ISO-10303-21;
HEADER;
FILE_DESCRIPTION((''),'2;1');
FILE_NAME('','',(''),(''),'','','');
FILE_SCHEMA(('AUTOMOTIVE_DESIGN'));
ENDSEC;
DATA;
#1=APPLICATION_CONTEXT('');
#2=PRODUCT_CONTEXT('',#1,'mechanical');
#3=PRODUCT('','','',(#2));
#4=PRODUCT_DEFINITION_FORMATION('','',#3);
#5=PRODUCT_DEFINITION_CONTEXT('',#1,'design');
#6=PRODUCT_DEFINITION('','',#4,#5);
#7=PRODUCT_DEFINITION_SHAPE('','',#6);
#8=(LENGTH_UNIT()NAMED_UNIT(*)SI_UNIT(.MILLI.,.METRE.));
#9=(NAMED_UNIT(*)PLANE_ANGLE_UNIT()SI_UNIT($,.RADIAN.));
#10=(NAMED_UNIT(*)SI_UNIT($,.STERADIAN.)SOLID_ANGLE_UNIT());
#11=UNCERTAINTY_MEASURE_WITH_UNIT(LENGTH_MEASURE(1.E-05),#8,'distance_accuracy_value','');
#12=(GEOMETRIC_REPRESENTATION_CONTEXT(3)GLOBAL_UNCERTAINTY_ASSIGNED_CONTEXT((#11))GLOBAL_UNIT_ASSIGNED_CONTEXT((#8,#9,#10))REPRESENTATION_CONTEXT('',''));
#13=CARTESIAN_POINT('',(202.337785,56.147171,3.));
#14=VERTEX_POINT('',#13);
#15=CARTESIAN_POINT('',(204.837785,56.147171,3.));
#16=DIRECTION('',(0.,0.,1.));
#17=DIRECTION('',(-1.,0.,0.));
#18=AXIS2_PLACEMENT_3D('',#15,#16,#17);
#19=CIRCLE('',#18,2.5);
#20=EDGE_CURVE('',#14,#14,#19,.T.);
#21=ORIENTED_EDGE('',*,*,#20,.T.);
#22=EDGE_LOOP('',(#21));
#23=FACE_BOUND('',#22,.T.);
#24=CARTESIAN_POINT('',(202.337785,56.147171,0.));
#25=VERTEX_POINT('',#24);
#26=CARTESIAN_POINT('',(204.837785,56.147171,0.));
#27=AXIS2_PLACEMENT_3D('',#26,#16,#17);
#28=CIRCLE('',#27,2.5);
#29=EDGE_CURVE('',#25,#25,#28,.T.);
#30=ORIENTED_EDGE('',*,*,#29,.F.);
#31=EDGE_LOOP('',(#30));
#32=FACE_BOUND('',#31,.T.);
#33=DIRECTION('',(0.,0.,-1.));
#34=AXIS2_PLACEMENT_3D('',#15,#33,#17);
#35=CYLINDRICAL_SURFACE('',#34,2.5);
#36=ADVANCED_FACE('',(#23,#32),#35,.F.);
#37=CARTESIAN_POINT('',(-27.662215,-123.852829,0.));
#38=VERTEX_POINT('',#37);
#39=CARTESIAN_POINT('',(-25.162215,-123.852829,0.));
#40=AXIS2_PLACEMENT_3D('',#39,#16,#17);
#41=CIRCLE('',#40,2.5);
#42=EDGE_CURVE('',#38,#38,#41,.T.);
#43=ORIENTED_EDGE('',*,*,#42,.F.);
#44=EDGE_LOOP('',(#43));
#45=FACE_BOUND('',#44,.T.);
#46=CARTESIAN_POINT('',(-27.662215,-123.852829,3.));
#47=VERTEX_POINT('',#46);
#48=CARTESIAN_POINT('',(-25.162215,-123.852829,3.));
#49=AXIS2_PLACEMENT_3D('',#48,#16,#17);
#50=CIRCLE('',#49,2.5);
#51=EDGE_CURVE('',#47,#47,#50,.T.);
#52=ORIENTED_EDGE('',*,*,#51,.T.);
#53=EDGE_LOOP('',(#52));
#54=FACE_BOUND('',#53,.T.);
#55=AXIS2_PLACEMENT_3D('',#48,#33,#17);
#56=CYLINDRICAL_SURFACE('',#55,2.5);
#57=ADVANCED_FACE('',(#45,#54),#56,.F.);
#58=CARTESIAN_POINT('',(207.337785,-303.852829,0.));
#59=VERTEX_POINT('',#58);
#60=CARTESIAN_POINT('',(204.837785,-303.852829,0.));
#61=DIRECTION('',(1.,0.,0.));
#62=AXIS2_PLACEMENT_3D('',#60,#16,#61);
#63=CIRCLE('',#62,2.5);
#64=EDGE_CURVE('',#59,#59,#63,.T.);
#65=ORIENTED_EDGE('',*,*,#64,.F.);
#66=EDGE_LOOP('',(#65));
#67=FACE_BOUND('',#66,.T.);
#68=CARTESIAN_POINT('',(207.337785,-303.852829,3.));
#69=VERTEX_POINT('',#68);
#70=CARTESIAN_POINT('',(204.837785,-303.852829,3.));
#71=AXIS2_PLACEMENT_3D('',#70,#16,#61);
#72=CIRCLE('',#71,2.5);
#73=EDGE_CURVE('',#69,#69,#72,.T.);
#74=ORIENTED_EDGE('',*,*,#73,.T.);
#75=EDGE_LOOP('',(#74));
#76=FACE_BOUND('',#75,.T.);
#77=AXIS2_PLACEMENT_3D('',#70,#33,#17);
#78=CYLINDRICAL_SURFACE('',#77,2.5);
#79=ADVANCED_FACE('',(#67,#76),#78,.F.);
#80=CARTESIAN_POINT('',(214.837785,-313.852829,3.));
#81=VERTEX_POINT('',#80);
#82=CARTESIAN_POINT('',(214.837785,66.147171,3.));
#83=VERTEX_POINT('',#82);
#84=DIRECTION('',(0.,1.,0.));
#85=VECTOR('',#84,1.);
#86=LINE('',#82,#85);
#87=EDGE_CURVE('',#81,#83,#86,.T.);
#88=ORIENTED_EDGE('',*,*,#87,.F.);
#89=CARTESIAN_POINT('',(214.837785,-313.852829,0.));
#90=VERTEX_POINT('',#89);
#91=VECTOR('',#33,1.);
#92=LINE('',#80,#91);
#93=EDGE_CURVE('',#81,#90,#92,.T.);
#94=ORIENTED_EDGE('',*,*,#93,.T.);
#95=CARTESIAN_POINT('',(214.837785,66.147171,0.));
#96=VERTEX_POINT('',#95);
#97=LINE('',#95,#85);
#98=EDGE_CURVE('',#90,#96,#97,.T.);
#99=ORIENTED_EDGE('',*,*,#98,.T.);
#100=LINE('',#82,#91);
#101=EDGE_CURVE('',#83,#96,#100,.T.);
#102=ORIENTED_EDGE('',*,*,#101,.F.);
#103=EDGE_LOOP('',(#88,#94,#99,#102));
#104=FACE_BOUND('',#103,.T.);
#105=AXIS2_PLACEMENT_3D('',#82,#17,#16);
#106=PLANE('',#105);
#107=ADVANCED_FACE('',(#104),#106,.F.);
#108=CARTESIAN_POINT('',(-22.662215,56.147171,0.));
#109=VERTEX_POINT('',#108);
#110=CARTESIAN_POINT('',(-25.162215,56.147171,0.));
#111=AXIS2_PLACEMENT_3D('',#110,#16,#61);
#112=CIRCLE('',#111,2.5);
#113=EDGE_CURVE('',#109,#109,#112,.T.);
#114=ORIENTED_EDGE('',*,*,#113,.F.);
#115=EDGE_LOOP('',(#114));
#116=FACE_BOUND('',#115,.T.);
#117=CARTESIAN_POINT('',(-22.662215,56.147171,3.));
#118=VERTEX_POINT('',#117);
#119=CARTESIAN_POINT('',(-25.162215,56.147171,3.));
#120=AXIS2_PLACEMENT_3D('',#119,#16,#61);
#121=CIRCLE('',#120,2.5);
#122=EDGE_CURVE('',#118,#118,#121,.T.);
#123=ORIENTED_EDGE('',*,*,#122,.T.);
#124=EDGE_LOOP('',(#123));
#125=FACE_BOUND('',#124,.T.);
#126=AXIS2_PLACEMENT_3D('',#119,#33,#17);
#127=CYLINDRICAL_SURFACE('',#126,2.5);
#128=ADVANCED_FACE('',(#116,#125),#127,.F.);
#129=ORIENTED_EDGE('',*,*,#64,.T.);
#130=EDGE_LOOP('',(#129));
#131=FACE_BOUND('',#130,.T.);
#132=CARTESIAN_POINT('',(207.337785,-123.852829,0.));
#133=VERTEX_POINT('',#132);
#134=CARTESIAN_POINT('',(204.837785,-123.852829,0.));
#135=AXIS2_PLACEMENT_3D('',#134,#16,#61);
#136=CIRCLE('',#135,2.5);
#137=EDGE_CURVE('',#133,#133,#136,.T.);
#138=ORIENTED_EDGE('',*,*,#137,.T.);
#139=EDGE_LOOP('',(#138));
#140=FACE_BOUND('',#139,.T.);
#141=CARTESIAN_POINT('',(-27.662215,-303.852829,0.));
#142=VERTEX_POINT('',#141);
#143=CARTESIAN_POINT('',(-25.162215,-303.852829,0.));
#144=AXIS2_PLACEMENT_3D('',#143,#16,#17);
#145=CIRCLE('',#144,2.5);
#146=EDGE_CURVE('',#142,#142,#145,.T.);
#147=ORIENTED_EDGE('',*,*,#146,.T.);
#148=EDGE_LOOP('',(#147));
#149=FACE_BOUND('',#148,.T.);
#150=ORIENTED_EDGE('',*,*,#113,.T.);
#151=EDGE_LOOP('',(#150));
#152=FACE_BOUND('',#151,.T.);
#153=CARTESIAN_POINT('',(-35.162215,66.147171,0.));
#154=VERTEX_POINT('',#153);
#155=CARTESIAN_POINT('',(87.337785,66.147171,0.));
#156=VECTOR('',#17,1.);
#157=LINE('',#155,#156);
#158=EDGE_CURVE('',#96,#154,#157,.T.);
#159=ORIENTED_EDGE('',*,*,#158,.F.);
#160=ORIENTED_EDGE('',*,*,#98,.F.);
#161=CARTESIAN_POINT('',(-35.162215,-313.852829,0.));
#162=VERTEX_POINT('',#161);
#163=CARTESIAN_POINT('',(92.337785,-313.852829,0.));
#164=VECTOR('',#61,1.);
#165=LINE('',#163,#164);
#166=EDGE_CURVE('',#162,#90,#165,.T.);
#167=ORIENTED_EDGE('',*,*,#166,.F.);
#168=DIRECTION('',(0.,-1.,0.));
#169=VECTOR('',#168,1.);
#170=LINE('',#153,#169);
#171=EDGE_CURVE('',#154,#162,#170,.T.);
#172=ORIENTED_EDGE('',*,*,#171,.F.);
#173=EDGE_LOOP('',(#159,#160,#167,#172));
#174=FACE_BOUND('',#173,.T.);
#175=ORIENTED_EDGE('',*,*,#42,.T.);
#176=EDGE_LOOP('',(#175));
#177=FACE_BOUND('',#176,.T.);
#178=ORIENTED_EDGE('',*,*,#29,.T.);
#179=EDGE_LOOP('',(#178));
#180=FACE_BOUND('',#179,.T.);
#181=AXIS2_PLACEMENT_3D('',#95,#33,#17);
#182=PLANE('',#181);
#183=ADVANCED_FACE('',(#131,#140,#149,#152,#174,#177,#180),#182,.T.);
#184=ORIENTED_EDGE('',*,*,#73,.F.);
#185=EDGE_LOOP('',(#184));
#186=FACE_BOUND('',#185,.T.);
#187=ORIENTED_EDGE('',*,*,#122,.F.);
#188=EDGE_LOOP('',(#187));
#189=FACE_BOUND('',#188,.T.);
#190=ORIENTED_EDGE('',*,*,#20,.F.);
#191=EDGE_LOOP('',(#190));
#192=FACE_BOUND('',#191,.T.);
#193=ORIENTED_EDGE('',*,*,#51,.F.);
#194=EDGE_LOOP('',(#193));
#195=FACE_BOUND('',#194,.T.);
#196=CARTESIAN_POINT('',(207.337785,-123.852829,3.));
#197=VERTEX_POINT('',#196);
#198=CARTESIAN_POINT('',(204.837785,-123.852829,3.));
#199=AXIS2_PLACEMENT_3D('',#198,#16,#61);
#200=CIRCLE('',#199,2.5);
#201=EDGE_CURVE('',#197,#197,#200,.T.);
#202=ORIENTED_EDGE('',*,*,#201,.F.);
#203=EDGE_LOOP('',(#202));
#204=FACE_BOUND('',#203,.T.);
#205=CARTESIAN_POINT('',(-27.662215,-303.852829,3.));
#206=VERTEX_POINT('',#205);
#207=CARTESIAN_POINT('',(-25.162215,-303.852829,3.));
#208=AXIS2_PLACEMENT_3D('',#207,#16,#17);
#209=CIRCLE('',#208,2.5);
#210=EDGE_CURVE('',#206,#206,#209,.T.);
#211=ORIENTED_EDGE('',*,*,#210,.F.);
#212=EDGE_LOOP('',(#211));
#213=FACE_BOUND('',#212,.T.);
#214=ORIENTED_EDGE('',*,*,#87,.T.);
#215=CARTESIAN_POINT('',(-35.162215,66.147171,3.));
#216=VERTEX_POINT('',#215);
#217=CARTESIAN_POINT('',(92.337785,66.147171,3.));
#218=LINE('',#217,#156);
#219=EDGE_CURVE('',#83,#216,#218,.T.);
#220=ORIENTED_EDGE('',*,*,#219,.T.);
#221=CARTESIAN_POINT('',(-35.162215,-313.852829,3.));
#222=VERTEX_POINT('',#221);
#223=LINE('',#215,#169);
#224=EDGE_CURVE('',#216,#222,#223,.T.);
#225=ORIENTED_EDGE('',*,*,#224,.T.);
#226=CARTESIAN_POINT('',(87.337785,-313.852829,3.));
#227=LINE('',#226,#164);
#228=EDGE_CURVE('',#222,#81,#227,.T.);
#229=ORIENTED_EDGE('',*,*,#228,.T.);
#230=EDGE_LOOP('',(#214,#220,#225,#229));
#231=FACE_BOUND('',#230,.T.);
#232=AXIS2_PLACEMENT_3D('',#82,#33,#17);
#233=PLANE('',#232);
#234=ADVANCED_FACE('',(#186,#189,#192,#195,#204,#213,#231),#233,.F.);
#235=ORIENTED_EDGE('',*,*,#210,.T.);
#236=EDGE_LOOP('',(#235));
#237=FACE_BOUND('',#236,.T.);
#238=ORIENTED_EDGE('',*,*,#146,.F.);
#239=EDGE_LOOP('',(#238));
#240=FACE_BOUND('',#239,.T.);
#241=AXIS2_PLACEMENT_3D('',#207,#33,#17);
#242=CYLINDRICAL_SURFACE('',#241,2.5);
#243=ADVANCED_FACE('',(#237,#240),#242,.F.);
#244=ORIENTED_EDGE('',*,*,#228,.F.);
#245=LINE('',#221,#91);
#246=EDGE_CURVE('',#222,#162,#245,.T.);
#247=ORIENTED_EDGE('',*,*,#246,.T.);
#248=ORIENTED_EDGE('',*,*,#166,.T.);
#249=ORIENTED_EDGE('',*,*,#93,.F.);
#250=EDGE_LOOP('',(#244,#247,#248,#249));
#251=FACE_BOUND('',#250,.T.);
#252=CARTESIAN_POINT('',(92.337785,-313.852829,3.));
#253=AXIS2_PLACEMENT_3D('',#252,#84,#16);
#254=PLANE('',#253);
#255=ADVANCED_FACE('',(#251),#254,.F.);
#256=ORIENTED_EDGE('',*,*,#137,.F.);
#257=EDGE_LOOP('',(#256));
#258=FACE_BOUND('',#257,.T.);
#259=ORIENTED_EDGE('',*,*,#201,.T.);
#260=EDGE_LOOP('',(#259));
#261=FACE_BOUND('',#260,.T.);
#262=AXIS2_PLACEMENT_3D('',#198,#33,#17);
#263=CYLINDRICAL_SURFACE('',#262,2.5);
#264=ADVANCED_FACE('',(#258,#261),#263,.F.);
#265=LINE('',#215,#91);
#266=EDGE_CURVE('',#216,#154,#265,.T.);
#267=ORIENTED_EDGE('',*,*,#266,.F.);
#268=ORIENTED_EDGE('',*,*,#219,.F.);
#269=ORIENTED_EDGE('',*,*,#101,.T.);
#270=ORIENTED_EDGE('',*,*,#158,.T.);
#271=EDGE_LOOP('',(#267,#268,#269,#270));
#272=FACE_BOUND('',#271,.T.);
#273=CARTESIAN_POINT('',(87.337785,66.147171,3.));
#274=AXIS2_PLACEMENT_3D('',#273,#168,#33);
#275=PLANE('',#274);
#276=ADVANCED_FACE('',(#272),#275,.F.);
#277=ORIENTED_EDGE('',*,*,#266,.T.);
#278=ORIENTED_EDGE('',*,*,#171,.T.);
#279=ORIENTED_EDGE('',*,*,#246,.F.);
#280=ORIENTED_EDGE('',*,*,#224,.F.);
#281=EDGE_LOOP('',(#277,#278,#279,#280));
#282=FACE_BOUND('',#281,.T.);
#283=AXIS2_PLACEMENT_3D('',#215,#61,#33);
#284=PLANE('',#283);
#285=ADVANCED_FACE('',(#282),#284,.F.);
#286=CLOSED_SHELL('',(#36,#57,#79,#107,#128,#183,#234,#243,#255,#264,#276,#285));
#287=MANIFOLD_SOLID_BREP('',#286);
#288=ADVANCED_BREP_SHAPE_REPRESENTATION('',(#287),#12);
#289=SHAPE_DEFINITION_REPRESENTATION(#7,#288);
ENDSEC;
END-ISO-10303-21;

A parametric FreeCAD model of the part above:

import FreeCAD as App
import Part
import Sketcher
from FreeCAD import Vector


def add_polygon(sketch, points):
    """Adds a closed chain of lines whose ends are joined by coincident constraints."""
    first, n = sketch.GeometryCount, len(points)
    for a, b in zip(points, points[1:] + points[:1]):
        sketch.addGeometry(Part.LineSegment(App.Vector(*a, 0), App.Vector(*b, 0)), False)
    for i in range(n):
        sketch.addConstraint(Sketcher.Constraint("Coincident", first + i, 2, first + (i + 1) % n, 1))

doc = App.newDocument("Part")
body = doc.addObject("PartDesign::Body", "Body")

# Sketch on XY plane
sketch1 = body.newObject("Sketcher::SketchObject", "Sketch")
sketch1.AttachmentSupport = (doc.getObject("XY_Plane"), [""])
sketch1.MapMode = "FlatFace"
add_polygon(sketch1, [(-35.2, 66.1), (-35.2, -313.9), (214.8, -313.9), (214.8, 66.1)])  # lines 0-3
sketch1.addGeometry(Part.Circle(Vector(-25.2, -303.9, 0), Vector(0, 0, 1), 2.5), False)  # 4
sketch1.addGeometry(Part.Circle(Vector(-25.2, -123.9, 0), Vector(0, 0, 1), 2.5), False)  # 5
sketch1.addGeometry(Part.Circle(Vector(204.8, -303.9, 0), Vector(0, 0, 1), 2.5), False)  # 6
sketch1.addGeometry(Part.Circle(Vector(204.8, -123.9, 0), Vector(0, 0, 1), 2.5), False)  # 7
sketch1.addGeometry(Part.Circle(Vector(-25.2, 56.1, 0), Vector(0, 0, 1), 2.5), False)  # 8
sketch1.addGeometry(Part.Circle(Vector(204.8, 56.1, 0), Vector(0, 0, 1), 2.5), False)  # 9
sketch1.addConstraint([
    Sketcher.Constraint("Vertical", 0),
    Sketcher.Constraint("Horizontal", 1),
    Sketcher.Constraint("Vertical", 2),
    Sketcher.Constraint("Horizontal", 3),
    Sketcher.Constraint("Equal", 4, 5),
    Sketcher.Constraint("Equal", 5, 6),
    Sketcher.Constraint("Equal", 6, 7),
    Sketcher.Constraint("Equal", 7, 8),
    Sketcher.Constraint("Equal", 8, 9),
    Sketcher.Constraint("Horizontal", 4, 3, 6, 3),
    Sketcher.Constraint("Horizontal", 5, 3, 7, 3),
    Sketcher.Constraint("Horizontal", 8, 3, 9, 3),
    Sketcher.Constraint("Vertical", 4, 3, 5, 3),
    Sketcher.Constraint("Vertical", 6, 3, 7, 3),
    Sketcher.Constraint("Vertical", 5, 3, 8, 3),
    Sketcher.Constraint("Vertical", 7, 3, 9, 3),
    Sketcher.Constraint("Diameter", 4, 5.0),
    Sketcher.Constraint("DistanceX", 1, 1, 1, 2, 250.0),
    Sketcher.Constraint("DistanceY", 0, 2, 0, 1, 380.0),
    Sketcher.Constraint("DistanceY", 4, 3, 5, 3, 180.0),
    Sketcher.Constraint("DistanceX", 4, 3, 6, 3, 230.0),
    Sketcher.Constraint("DistanceY", 5, 3, 8, 3, 180.0),
    Sketcher.Constraint("DistanceX", 0, 2, 4, 3, 10.0),
    Sketcher.Constraint("DistanceY", 0, 2, 4, 3, 10.0),
    Sketcher.Constraint("DistanceY", 4, 3, -1, 1, 303.852829),
    Sketcher.Constraint("DistanceX", 4, 3, -1, 1, 25.162215),
])
pad1 = body.newObject("PartDesign::Pad", "Pad")
pad1.Profile = sketch1
pad1.Length = 3

doc.recompute()
